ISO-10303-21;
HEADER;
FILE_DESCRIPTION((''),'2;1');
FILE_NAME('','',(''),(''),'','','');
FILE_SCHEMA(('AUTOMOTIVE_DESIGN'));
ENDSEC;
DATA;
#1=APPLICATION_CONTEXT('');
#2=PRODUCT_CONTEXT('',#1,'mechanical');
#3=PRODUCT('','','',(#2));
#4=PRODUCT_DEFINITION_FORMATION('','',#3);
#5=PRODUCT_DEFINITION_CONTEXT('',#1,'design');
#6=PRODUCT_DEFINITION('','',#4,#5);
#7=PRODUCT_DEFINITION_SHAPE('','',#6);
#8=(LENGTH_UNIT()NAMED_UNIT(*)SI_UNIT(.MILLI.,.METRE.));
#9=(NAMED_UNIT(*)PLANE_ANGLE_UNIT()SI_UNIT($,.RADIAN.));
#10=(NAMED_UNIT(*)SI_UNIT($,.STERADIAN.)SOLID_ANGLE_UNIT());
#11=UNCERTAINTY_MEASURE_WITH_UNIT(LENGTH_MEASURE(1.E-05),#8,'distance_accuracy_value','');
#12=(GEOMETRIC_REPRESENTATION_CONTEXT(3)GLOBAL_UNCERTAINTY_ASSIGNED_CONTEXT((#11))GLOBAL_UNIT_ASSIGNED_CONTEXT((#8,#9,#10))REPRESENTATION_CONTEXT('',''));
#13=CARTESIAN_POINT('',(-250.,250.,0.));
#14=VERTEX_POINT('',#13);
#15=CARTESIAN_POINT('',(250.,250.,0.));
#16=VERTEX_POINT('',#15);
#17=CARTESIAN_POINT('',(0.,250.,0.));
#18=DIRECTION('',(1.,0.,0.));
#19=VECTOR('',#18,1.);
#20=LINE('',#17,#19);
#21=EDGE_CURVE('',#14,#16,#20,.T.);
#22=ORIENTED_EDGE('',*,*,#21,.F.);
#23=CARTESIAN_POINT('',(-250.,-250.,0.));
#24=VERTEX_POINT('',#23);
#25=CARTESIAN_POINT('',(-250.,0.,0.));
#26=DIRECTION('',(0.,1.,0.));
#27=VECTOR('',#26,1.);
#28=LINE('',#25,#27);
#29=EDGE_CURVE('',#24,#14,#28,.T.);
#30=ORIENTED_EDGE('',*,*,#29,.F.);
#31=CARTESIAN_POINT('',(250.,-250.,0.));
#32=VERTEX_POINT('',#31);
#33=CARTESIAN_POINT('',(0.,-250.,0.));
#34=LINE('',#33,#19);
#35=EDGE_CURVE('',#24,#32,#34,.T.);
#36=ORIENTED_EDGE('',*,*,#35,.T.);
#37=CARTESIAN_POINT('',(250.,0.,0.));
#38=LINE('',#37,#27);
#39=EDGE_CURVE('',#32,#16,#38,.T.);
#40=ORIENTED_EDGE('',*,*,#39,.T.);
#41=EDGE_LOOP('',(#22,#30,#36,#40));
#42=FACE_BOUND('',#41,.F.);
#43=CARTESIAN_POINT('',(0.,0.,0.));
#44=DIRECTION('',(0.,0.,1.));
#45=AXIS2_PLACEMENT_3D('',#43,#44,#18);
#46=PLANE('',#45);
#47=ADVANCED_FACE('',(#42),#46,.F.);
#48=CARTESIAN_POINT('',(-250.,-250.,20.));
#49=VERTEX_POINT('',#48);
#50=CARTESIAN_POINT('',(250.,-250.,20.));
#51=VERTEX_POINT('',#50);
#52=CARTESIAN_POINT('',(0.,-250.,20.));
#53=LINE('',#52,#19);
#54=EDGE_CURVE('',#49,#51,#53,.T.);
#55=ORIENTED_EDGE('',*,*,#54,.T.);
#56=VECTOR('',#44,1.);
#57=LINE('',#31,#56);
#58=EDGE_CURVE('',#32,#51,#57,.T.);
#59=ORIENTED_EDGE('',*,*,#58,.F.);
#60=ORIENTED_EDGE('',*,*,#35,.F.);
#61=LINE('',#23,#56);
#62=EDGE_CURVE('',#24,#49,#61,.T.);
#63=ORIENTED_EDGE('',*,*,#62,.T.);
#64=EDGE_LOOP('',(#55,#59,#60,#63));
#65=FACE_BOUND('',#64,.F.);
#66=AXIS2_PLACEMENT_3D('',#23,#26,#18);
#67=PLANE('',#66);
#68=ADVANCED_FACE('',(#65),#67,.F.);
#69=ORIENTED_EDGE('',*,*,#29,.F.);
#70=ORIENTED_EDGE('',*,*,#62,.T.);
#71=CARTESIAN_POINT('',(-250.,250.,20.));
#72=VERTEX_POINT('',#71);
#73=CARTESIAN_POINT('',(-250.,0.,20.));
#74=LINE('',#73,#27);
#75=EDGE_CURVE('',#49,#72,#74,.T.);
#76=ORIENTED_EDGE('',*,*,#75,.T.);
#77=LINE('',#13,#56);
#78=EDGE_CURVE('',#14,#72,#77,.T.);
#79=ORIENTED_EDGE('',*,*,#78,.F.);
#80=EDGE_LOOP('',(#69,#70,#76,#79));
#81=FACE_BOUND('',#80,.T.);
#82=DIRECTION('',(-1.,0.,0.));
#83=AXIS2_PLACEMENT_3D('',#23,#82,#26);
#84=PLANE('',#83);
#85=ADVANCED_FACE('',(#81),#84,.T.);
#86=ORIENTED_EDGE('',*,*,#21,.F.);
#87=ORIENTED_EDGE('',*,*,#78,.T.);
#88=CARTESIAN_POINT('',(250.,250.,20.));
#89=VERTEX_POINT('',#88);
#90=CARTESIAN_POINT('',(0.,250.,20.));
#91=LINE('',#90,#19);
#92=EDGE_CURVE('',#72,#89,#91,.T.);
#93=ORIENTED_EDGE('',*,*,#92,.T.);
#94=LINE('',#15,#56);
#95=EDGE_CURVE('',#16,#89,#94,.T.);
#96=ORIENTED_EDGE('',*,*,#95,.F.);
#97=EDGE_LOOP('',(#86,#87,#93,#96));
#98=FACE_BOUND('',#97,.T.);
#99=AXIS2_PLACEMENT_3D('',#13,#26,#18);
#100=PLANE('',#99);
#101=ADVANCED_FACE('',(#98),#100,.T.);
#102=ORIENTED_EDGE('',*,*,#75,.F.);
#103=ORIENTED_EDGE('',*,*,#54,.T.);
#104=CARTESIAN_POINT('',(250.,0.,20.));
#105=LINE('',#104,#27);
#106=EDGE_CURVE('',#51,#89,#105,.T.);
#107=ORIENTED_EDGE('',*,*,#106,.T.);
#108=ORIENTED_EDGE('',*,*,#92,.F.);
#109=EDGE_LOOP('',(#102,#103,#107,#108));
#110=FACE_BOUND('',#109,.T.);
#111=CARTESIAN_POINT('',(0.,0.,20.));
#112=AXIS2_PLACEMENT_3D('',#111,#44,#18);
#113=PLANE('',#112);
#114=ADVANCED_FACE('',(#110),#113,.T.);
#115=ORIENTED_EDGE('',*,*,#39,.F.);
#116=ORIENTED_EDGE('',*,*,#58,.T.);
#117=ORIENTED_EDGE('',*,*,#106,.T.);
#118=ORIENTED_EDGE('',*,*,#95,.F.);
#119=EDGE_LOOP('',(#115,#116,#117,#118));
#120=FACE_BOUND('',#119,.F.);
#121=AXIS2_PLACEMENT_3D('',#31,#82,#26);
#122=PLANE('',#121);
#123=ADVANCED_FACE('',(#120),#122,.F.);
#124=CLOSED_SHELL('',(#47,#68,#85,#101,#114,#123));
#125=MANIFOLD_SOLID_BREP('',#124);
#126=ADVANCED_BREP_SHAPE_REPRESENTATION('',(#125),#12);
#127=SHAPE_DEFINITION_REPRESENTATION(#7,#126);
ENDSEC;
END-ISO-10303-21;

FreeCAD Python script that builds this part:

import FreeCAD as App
import Part
import Sketcher
from FreeCAD import Vector

doc = App.newDocument("Part")
body = doc.addObject("PartDesign::Body", "Body")

# Sketch on XY plane
sketch1 = body.newObject("Sketcher::SketchObject", "Sketch")
sketch1.AttachmentSupport = (doc.getObject("XY_Plane"), [""])
sketch1.MapMode = "FlatFace"
sketch1.addGeometry([
    Part.LineSegment(Vector(-250, 250, 0), Vector(-250, -250, 0)),
    Part.LineSegment(Vector(-250, -250, 0), Vector(250, -250, 0)),
    Part.LineSegment(Vector(250, -250, 0), Vector(250, 250, 0)),
    Part.LineSegment(Vector(250, 250, 0), Vector(-250, 250, 0)),
], False)
sketch1.addConstraint([
    Sketcher.Constraint("Coincident", 0, 2, 1, 1),
    Sketcher.Constraint("Coincident", 1, 2, 2, 1),
    Sketcher.Constraint("Coincident", 2, 2, 3, 1),
    Sketcher.Constraint("Coincident", 3, 2, 0, 1),
    Sketcher.Constraint("Vertical", 0),
    Sketcher.Constraint("Horizontal", 1),
    Sketcher.Constraint("Vertical", 2),
    Sketcher.Constraint("Horizontal", 3),
    Sketcher.Constraint("Symmetric", 0, 2, 2, 2, -1, 1),
    Sketcher.Constraint("Equal", 3, 0),
    Sketcher.Constraint("DistanceX", 1, 1, 1, 2, 500.0),
])
pad1 = body.newObject("PartDesign::Pad", "Pad")
pad1.Profile = sketch1
pad1.Length = 20

doc.recompute()
